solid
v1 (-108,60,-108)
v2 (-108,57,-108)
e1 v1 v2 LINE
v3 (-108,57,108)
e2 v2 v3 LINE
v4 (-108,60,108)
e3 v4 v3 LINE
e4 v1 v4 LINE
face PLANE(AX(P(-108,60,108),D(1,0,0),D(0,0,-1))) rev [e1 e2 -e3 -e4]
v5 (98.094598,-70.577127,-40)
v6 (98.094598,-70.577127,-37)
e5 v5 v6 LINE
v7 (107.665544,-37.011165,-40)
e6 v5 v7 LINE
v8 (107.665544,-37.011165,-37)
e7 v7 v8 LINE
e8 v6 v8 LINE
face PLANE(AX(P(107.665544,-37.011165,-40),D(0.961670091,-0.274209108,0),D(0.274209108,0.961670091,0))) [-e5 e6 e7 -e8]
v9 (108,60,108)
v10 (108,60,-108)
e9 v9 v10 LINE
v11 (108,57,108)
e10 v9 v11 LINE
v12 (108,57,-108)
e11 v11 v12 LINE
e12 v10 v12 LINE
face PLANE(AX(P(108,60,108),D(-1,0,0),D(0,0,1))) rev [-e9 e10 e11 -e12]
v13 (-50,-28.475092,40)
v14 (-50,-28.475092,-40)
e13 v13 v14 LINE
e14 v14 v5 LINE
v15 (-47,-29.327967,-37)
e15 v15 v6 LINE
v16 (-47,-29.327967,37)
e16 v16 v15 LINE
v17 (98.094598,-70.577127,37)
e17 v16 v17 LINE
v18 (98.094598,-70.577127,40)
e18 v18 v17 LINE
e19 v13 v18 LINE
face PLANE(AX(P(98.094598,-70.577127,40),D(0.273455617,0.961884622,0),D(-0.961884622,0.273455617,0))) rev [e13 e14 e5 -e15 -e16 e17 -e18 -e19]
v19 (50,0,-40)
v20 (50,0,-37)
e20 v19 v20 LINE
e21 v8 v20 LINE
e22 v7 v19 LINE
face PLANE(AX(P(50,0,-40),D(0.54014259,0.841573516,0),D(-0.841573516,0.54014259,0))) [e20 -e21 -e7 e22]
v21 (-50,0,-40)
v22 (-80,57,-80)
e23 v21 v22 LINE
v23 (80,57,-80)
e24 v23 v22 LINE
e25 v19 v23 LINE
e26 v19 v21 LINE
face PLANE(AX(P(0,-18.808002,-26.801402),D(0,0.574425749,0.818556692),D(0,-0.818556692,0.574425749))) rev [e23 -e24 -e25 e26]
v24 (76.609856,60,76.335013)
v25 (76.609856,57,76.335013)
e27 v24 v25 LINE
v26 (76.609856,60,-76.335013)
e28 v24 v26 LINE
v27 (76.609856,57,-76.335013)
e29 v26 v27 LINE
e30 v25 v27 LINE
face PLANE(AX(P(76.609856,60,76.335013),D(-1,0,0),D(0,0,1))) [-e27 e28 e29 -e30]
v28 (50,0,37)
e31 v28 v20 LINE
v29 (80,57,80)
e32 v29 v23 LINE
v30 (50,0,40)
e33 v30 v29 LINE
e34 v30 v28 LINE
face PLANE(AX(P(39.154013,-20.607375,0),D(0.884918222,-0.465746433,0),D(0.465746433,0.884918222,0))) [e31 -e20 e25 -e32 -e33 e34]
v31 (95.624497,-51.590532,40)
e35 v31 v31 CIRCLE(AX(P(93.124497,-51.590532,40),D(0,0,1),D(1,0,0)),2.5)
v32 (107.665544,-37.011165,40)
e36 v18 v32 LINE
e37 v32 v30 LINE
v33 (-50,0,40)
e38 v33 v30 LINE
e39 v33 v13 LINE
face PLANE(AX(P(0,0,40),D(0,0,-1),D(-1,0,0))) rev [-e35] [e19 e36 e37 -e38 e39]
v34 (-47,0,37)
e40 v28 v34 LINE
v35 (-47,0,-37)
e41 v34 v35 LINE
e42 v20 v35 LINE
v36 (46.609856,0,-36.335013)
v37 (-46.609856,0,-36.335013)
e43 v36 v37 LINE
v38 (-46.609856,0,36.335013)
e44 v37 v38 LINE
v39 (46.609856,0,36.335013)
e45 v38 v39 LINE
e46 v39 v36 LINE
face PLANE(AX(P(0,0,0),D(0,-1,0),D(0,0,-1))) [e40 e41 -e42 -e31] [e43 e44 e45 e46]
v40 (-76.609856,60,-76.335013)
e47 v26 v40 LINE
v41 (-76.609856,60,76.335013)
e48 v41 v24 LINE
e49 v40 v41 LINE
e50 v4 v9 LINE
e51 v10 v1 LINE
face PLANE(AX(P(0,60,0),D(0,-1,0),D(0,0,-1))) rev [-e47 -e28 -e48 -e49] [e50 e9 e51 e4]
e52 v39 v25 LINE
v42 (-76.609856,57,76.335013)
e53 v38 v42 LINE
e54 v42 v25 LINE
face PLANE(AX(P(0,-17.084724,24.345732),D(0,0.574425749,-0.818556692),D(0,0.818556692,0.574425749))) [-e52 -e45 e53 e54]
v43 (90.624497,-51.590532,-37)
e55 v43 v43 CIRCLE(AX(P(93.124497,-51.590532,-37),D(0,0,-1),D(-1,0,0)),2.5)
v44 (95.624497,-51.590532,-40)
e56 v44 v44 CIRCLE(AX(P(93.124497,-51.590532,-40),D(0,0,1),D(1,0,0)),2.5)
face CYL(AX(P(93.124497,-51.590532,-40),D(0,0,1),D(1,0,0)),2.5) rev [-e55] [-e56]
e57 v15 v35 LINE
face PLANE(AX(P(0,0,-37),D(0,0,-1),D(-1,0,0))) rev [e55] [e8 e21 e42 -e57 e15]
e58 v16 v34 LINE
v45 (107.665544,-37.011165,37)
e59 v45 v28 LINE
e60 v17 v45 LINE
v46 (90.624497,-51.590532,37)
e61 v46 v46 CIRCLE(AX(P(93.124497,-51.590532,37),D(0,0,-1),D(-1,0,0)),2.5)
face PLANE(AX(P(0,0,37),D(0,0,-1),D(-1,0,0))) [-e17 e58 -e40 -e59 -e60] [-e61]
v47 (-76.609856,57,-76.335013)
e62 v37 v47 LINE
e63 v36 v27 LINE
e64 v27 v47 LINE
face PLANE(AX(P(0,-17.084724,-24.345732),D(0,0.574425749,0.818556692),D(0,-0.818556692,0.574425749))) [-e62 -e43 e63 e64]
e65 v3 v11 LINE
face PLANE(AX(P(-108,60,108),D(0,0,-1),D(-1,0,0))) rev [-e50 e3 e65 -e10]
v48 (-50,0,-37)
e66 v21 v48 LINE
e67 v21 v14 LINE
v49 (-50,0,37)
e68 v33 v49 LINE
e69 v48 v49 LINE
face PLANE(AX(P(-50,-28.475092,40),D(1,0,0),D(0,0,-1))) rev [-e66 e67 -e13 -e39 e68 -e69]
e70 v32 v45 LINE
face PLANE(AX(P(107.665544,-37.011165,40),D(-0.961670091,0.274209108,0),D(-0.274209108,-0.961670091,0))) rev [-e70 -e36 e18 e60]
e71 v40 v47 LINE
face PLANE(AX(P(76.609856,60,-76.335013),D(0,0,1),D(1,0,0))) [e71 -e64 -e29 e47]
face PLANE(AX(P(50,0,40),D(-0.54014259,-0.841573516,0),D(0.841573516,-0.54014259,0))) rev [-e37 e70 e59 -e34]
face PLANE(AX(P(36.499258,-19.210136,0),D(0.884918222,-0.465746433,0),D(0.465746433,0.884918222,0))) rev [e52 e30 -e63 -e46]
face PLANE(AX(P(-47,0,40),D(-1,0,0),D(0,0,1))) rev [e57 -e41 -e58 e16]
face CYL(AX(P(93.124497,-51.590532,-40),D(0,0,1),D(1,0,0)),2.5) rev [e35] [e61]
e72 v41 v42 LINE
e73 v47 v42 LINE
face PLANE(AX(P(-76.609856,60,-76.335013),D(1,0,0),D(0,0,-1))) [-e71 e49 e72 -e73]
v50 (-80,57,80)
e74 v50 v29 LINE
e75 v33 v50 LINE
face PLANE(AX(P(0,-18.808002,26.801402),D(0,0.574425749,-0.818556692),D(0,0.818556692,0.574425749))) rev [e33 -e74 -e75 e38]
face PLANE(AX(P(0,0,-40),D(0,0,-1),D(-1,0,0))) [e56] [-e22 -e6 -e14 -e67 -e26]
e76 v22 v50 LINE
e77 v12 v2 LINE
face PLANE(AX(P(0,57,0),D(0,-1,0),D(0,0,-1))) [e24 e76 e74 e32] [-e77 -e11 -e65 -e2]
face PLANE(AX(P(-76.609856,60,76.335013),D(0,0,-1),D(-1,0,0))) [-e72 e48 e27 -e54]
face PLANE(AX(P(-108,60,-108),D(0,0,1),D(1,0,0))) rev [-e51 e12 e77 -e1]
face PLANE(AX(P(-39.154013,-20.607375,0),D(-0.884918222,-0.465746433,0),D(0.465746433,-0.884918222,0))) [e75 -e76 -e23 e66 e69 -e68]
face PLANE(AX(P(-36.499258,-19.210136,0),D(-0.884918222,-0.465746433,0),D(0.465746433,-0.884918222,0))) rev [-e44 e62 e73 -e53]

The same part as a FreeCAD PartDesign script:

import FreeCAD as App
import Part
import Sketcher
from FreeCAD import Vector
Q = App.Units.Quantity


def faces_at(feature, points):
    """Names of the faces that lie closest to the given points."""
    faces = feature.Shape.Faces
    near = lambda p: min(range(len(faces)), key=lambda i: faces[i].distToShape(Part.Vertex(*p))[0])
    return sorted({f"Face{near(p) + 1}" for p in points})


def add_polygon(sketch, points):
    """Adds a closed chain of lines whose ends are joined by coincident constraints."""
    first, n = sketch.GeometryCount, len(points)
    for a, b in zip(points, points[1:] + points[:1]):
        sketch.addGeometry(Part.LineSegment(App.Vector(*a, 0), App.Vector(*b, 0)), False)
    for i in range(n):
        sketch.addConstraint(Sketcher.Constraint("Coincident", first + i, 2, first + (i + 1) % n, 1))

doc = App.newDocument("Part")
body = doc.addObject("PartDesign::Body", "Body")

# Sketch on XZ plane
sketch1 = body.newObject("Sketcher::SketchObject", "Sketch")
sketch1.AttachmentSupport = (doc.getObject("XZ_Plane"), [""])
sketch1.MapMode = "FlatFace"
add_polygon(sketch1, [(-50, 40), (50, 40), (50, -40), (-50, -40)])  # lines 0-3
sketch1.addConstraint(Sketcher.Constraint("Horizontal", 0))
sketch1.addConstraint(Sketcher.Constraint("Vertical", 1))
sketch1.addConstraint(Sketcher.Constraint("Horizontal", 2))
sketch1.addConstraint(Sketcher.Constraint("Vertical", 3))
sketch1.addConstraint(Sketcher.Constraint("Symmetric", 0, 2, 2, 2, -1, 1))
sketch1.addConstraint(Sketcher.Constraint("DistanceX", 0, 1, 0, 2, 100.0))
sketch1.addConstraint(Sketcher.Constraint("DistanceY", 1, 2, 1, 1, 80.0))

# Sketch on XZ plane
sketch2 = body.newObject("Sketcher::SketchObject", "Sketch001")
sketch2.AttachmentSupport = (doc.getObject("XZ_Plane"), [""])
sketch2.MapMode = "FlatFace"
sketch2.AttachmentOffset = App.Placement(Vector(0, 0, -57), App.Rotation())
add_polygon(sketch2, [(-80, 80), (80, 80), (80, -80), (-80, -80)])  # lines 0-3
sketch2.addConstraint(Sketcher.Constraint("Horizontal", 0))
sketch2.addConstraint(Sketcher.Constraint("Vertical", 1))
sketch2.addConstraint(Sketcher.Constraint("Horizontal", 2))
sketch2.addConstraint(Sketcher.Constraint("Vertical", 3))
sketch2.addConstraint(Sketcher.Constraint("Symmetric", 0, 2, 2, 2, -1, 1))
sketch2.addConstraint(Sketcher.Constraint("Equal", 2, 1))
sketch2.addConstraint(Sketcher.Constraint("DistanceX", 0, 1, 0, 2, 160.0))

additiveloft = body.newObject("PartDesign::AdditiveLoft", "AdditiveLoft")
additiveloft.Profile = sketch1
additiveloft.Sections = [sketch2]
doc.recompute()

thickness = body.newObject("PartDesign::Thickness", "Thickness")
thickness.Base = (additiveloft, faces_at(additiveloft, [(0, 57, 0), (0, 0, 0)]))
thickness.Value = 3
thickness.Reversed = True
thickness.Join = "Intersection"

# Sketch on XZ plane
sketch3 = body.newObject("Sketcher::SketchObject", "Sketch002")
sketch3.AttachmentSupport = (doc.getObject("XZ_Plane"), [""])
sketch3.MapMode = "FlatFace"
sketch3.AttachmentOffset = App.Placement(Vector(0, 0, -57), App.Rotation())
add_polygon(sketch3, [(-108, -108), (-108, 108), (108, 108), (108, -108)])  # lines 0-3
add_polygon(sketch3, [(77, 76), (-77, 76), (-77, -76), (77, -76)])  # lines 4-7
sketch3.addConstraint(Sketcher.Constraint("Vertical", 0))
sketch3.addConstraint(Sketcher.Constraint("Horizontal", 1))
sketch3.addConstraint(Sketcher.Constraint("Vertical", 2))
sketch3.addConstraint(Sketcher.Constraint("Horizontal", 3))
sketch3.addConstraint(Sketcher.Constraint("Horizontal", 4))
sketch3.addConstraint(Sketcher.Constraint("Vertical", 5))
sketch3.addConstraint(Sketcher.Constraint("Horizontal", 6))
sketch3.addConstraint(Sketcher.Constraint("Vertical", 7))
sketch3.addConstraint(Sketcher.Constraint("Symmetric", 0, 2, 2, 2, -1, 1))
sketch3.addConstraint(Sketcher.Constraint("Symmetric", 4, 2, 6, 2, -1, 1))
sketch3.addConstraint(Sketcher.Constraint("Equal", 3, 0))
sketch3.addConstraint(Sketcher.Constraint("DistanceX", 1, 1, 1, 2, 216.0))
sketch3.addConstraint(Sketcher.Constraint("DistanceX", 4, 2, 4, 1, 153.219712))
sketch3.addConstraint(Sketcher.Constraint("DistanceY", 5, 2, 5, 1, 152.670025))
pad1 = body.newObject("PartDesign::Pad", "Pad")
pad1.Profile = sketch3
pad1.Length = 3
pad1.Reversed = True

# Sketch on XY plane
sketch4 = body.newObject("Sketcher::SketchObject", "Sketch003")
sketch4.AttachmentSupport = (doc.getObject("XY_Plane"), [""])
sketch4.MapMode = "FlatFace"
sketch4.AttachmentOffset = App.Placement(Vector(0, 0, 37), App.Rotation())
add_polygon(sketch4, [(50, 0), (-50, 0), (-50, -28), (98, -71), (108, -37)])  # lines 0-4
sketch4.addConstraint(Sketcher.Constraint("Horizontal", 0))
sketch4.addConstraint(Sketcher.Constraint("Vertical", 1))
sketch4.addConstraint(Sketcher.Constraint("Symmetric", 0, 2, 4, 2, -1, 1))
sketch4.addConstraint(Sketcher.Constraint("DistanceX", 0, 2, 0, 1, 100.0))
sketch4.addConstraint(Sketcher.Constraint("Angle", 2, Q("-15.87 deg")))
sketch4.addConstraint(Sketcher.Constraint("Distance", 4, 68.521101))
sketch4.addConstraint(Sketcher.Constraint("DistanceX", -1, 1, 2, 2, 98.094598))
sketch4.addConstraint(Sketcher.Constraint("DistanceY", 1, 2, 1, 1, 28.475092))
sketch4.addConstraint(Sketcher.Constraint("Distance", 3, 34.903822))
pad2 = body.newObject("PartDesign::Pad", "Pad001")
pad2.Profile = sketch4
pad2.Length = 3

# Sketch on XY plane
sketch5 = body.newObject("Sketcher::SketchObject", "Sketch004")
sketch5.AttachmentSupport = (doc.getObject("XY_Plane"), [""])
sketch5.MapMode = "FlatFace"
sketch5.AttachmentOffset = App.Placement(Vector(0, 0, -37), App.Rotation())
add_polygon(sketch5, [(50, 0), (-50, 0), (-50, -28), (98, -71), (108, -37)])  # lines 0-4
sketch5.addConstraint(Sketcher.Constraint("Horizontal", 0))
sketch5.addConstraint(Sketcher.Constraint("Vertical", 1))
sketch5.addConstraint(Sketcher.Constraint("Symmetric", 0, 2, 4, 2, -1, 1))
sketch5.addConstraint(Sketcher.Constraint("DistanceX", 0, 2, 0, 1, 100.0))
sketch5.addConstraint(Sketcher.Constraint("Angle", 2, Q("-15.87 deg")))
sketch5.addConstraint(Sketcher.Constraint("Distance", 4, 68.521101))
sketch5.addConstraint(Sketcher.Constraint("DistanceX", -1, 1, 2, 2, 98.094598))
sketch5.addConstraint(Sketcher.Constraint("DistanceY", 1, 2, 1, 1, 28.475092))
sketch5.addConstraint(Sketcher.Constraint("Distance", 3, 34.903822))
pad3 = body.newObject("PartDesign::Pad", "Pad002")
pad3.Profile = sketch5
pad3.Length = 3
pad3.Reversed = True

# Sketch on XY plane
sketch6 = body.newObject("Sketcher::SketchObject", "Sketch005")
sketch6.AttachmentSupport = (doc.getObject("XY_Plane"), [""])
sketch6.MapMode = "FlatFace"
add_polygon(sketch6, [(-47, 0), (-50, 0), (-50, -28.5), (-47, -29.3)])  # lines 0-3
sketch6.addConstraint(Sketcher.Constraint("Horizontal", 0))
sketch6.addConstraint(Sketcher.Constraint("Vertical", 1))
sketch6.addConstraint(Sketcher.Constraint("Vertical", 3))
sketch6.addConstraint(Sketcher.Constraint("PointOnObject", 0, 2, -1))
sketch6.addConstraint(Sketcher.Constraint("DistanceX", 0, 2, 0, 1, 3.0))
sketch6.addConstraint(Sketcher.Constraint("DistanceX", 0, 2, -1, 1, 50.0))
sketch6.addConstraint(Sketcher.Constraint("Angle", 2, Q("-15.870009 deg")))
sketch6.addConstraint(Sketcher.Constraint("DistanceY", 1, 2, 1, 1, 28.475092))
pad4 = body.newObject("PartDesign::Pad", "Pad003")
pad4.Profile = sketch6
pad4.Length = 80
pad4.Midplane = True

# Sketch on XY plane
sketch7 = body.newObject("Sketcher::SketchObject", "Sketch006")
sketch7.AttachmentSupport = (doc.getObject("XY_Plane"), [""])
sketch7.MapMode = "FlatFace"
sketch7.addGeometry(Part.Circle(Vector(93.1, -51.6, 0), Vector(0, 0, 1), 2.5), False)
sketch7.addConstraint(Sketcher.Constraint("Diameter", 0, 5.0))
sketch7.addConstraint(Sketcher.Constraint("DistanceX", -1, 1, 0, 3, 93.124497))
sketch7.addConstraint(Sketcher.Constraint("DistanceY", 0, 3, -1, 1, 51.590532))
pocket1 = body.newObject("PartDesign::Pocket", "Pocket")
pocket1.Profile = sketch7
pocket1.Length = 80
pocket1.Midplane = True

doc.recompute()
